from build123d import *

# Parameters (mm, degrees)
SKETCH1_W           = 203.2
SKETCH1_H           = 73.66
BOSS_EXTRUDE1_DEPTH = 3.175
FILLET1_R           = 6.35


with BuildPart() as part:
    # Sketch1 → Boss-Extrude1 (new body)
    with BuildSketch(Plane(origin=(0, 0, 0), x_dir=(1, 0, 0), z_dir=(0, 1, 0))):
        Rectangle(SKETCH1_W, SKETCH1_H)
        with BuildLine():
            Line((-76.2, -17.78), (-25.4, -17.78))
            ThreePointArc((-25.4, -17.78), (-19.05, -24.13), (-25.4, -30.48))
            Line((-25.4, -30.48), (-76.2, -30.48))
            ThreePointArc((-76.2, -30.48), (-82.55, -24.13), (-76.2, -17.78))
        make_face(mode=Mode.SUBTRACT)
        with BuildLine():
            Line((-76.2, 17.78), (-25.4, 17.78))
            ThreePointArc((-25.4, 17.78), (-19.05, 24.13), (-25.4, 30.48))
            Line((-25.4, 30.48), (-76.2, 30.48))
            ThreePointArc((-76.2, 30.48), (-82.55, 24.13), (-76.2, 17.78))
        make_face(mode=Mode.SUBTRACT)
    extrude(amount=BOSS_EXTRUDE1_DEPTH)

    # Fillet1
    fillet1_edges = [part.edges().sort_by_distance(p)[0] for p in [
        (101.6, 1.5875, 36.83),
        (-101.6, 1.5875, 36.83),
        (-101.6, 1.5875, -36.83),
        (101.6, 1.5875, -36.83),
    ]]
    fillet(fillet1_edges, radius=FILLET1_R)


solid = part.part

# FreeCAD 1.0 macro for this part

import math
import FreeCAD as App
import Part
import Sketcher

V = App.Vector
Q = App.Units.Quantity


def edges_at(feature, points):
    """Names of the edges that pass closest to the given points."""
    edges = feature.Shape.Edges
    near = lambda p: min(range(len(edges)), key=lambda i: edges[i].distToShape(Part.Vertex(*p))[0])
    return sorted({f"Edge{near(p) + 1}" for p in points})

doc = App.newDocument("Part")
body = doc.addObject("PartDesign::Body", "Body")

sketch1 = body.newObject("Sketcher::SketchObject", "Sketch")
sketch1.AttachmentSupport = (doc.getObject("XZ_Plane"), [""])
sketch1.MapMode = "FlatFace"
sketch1.addGeometry([
    Part.LineSegment(V(-101.6, -36.83, 0), V(-101.6, 36.83, 0)),
    Part.LineSegment(V(-101.6, 36.83, 0), V(101.6, 36.83, 0)),
    Part.LineSegment(V(101.6, 36.83, 0), V(101.6, -36.83, 0)),
    Part.LineSegment(V(101.6, -36.83, 0), V(-101.6, -36.83, 0)),
    Part.ArcOfCircle(Part.Circle(V(-76.2, 24.13, 0), V(0, 0, 1), 6.35), math.radians(90), math.radians(270)),
    Part.LineSegment(V(-76.2, 17.78, 0), V(-25.4, 17.78, 0)),
    Part.ArcOfCircle(Part.Circle(V(-25.4, 24.13, 0), V(0, 0, 1), 6.35), math.radians(-90), math.radians(90)),
    Part.LineSegment(V(-25.4, 30.48, 0), V(-76.2, 30.48, 0)),
    Part.LineSegment(V(-25.4, -17.78, 0), V(-76.2, -17.78, 0)),
    Part.ArcOfCircle(Part.Circle(V(-76.2, -24.13, 0), V(0, 0, 1), 6.35), math.radians(90), math.radians(270)),
    Part.LineSegment(V(-76.2, -30.48, 0), V(-25.4, -30.48, 0)),
    Part.ArcOfCircle(Part.Circle(V(-25.4, -24.13, 0), V(0, 0, 1), 6.35), math.radians(-90), math.radians(90)),
], False)
sketch1.addConstraint([
    Sketcher.Constraint("Coincident", 0, 2, 1, 1),
    Sketcher.Constraint("Coincident", 1, 2, 2, 1),
    Sketcher.Constraint("Coincident", 2, 2, 3, 1),
    Sketcher.Constraint("Coincident", 3, 2, 0, 1),
    Sketcher.Constraint("Tangent", 4, 2, 5, 1),
    Sketcher.Constraint("Tangent", 5, 2, 6, 1),
    Sketcher.Constraint("Tangent", 6, 2, 7, 1),
    Sketcher.Constraint("Tangent", 7, 2, 4, 1),
    Sketcher.Constraint("Tangent", 8, 2, 9, 1),
    Sketcher.Constraint("Tangent", 9, 2, 10, 1),
    Sketcher.Constraint("Tangent", 10, 2, 11, 1),
    Sketcher.Constraint("Tangent", 11, 2, 8, 1),
    Sketcher.Constraint("Vertical", 0),
    Sketcher.Constraint("Horizontal", 1),
    Sketcher.Constraint("Vertical", 2),
    Sketcher.Constraint("Horizontal", 3),
    Sketcher.Constraint("Horizontal", 5),
    Sketcher.Constraint("Horizontal", 7),
    Sketcher.Constraint("Horizontal", 8),
    Sketcher.Constraint("Horizontal", 10),
    Sketcher.Constraint("Equal", 6, 9),
    Sketcher.Constraint("Symmetric", 0, 2, 2, 2, -1, 1),
    Sketcher.Constraint("Symmetric", 4, 3, 9, 3, -1),
    Sketcher.Constraint("Vertical", 6, 3, 11, 3),
    Sketcher.Constraint("DistanceX", 1, 1, 1, 2, Q("8 in")),
    Sketcher.Constraint("DistanceX", 5, 1, 5, 2, Q("2 in")),
    Sketcher.Constraint("Radius", 4, Q("0.25 in")),
    Sketcher.Constraint("DistanceY", 0, 1, 0, 2, Q("2.9 in")),
    Sketcher.Constraint("DistanceX", 4, 3, -1, 1, Q("3 in")),
    Sketcher.Constraint("DistanceY", -1, 1, 4, 2, Q("0.7 in")),
])
pad1 = body.newObject("PartDesign::Pad", "Pad")
pad1.Profile = sketch1
pad1.Length = Q("0.125 in")
pad1.Reversed = True
doc.recompute()

fillet = body.newObject("PartDesign::Fillet", "Fillet")
fillet.Base = (pad1, edges_at(pad1, [
    (101.6, 1.587, 36.83),
    (-101.6, 1.587, 36.83),
    (-101.6, 1.587, -36.83),
    (101.6, 1.587, -36.83),
]))
fillet.Radius = Q("0.25 in")

doc.recompute()
